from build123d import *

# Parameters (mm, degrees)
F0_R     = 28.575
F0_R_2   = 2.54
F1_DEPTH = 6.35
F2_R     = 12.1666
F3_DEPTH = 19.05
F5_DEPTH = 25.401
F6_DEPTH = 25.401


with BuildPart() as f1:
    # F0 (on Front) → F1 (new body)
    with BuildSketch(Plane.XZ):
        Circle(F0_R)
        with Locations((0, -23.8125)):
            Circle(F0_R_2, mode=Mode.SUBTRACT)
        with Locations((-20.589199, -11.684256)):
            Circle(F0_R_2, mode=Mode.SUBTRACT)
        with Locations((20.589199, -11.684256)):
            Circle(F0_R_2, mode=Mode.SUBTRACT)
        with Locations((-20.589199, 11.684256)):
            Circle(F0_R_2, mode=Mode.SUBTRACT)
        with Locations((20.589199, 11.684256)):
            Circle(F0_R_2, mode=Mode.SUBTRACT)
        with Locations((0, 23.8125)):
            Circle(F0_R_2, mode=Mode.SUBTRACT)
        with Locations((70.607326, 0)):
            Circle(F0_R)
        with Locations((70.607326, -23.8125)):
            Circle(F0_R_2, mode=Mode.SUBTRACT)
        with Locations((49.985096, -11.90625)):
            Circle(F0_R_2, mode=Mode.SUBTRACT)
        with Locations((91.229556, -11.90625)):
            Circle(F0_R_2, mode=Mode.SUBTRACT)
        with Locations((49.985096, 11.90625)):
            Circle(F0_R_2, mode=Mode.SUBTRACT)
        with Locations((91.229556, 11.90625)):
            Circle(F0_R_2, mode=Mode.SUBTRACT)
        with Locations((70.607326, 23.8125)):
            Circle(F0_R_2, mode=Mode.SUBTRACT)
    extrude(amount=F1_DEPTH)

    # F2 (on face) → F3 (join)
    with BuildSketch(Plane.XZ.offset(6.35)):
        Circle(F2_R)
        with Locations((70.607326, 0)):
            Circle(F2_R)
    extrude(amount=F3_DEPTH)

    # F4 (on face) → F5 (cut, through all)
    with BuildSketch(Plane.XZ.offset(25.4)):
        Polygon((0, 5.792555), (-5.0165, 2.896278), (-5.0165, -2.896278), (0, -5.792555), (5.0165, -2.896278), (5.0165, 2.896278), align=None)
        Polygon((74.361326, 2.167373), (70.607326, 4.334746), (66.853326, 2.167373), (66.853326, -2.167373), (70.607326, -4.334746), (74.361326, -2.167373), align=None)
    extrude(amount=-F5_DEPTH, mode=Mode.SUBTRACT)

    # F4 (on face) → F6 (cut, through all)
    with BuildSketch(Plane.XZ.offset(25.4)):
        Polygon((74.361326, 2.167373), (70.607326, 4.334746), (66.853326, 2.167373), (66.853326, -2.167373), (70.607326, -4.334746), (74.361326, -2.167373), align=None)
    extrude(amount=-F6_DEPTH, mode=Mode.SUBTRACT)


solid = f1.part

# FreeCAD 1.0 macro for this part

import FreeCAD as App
import Part
import Sketcher
Q = App.Units.Quantity

doc = App.newDocument("Part")
body = doc.addObject("PartDesign::Body", "Body")
body.AllowCompound = True

# Sketch on XZ plane
sketch1 = body.newObject("Sketcher::SketchObject", "Sketch")
sketch1.AttachmentSupport = (doc.getObject("XZ_Plane"), [""])
sketch1.MapMode = "FlatFace"
sketch1.addGeometry([
    Part.Circle(App.Vector(0, 0, 0), App.Vector(0, 0, 1), 28.6),  # 0
    Part.Circle(App.Vector(-20.6, -11.7, 0), App.Vector(0, 0, 1), 2.5),  # 1
    Part.Circle(App.Vector(0, -23.8, 0), App.Vector(0, 0, 1), 2.5),  # 2
    Part.Circle(App.Vector(20.6, -11.7, 0), App.Vector(0, 0, 1), 2.5),  # 3
    Part.Circle(App.Vector(-20.6, 11.7, 0), App.Vector(0, 0, 1), 2.5),  # 4
    Part.Circle(App.Vector(20.6, 11.7, 0), App.Vector(0, 0, 1), 2.5),  # 5
    Part.Circle(App.Vector(0, 23.8, 0), App.Vector(0, 0, 1), 2.5),  # 6
    Part.Circle(App.Vector(70.6, 0, 0), App.Vector(0, 0, 1), 28.6),  # 7
    Part.Circle(App.Vector(70.6, -23.8, 0), App.Vector(0, 0, 1), 2.5),  # 8
    Part.Circle(App.Vector(50, -11.9, 0), App.Vector(0, 0, 1), 2.5),  # 9
    Part.Circle(App.Vector(91.2, -11.9, 0), App.Vector(0, 0, 1), 2.5),  # 10
    Part.Circle(App.Vector(50, 11.9, 0), App.Vector(0, 0, 1), 2.5),  # 11
    Part.Circle(App.Vector(70.6, 23.8, 0), App.Vector(0, 0, 1), 2.5),  # 12
    Part.Circle(App.Vector(91.2, 11.9, 0), App.Vector(0, 0, 1), 2.5),  # 13
], False)
sketch1.addConstraint([
    Sketcher.Constraint("Coincident", 0, 3, -1, 1),
    Sketcher.Constraint("Equal", 1, 2),
    Sketcher.Constraint("Equal", 2, 3),
    Sketcher.Constraint("Equal", 3, 4),
    Sketcher.Constraint("Equal", 4, 5),
    Sketcher.Constraint("Equal", 5, 6),
    Sketcher.Constraint("Equal", 0, 7),
    Sketcher.Constraint("Equal", 6, 8),
    Sketcher.Constraint("Equal", 8, 9),
    Sketcher.Constraint("Equal", 9, 10),
    Sketcher.Constraint("Equal", 10, 11),
    Sketcher.Constraint("Equal", 11, 12),
    Sketcher.Constraint("Equal", 12, 13),
    Sketcher.Constraint("Symmetric", 3, 3, 4, 3, -1, 1),
    Sketcher.Constraint("Symmetric", 1, 3, 5, 3, -1, 1),
    Sketcher.Constraint("Symmetric", 2, 3, 6, 3, -1, 1),
    Sketcher.Constraint("Symmetric", 1, 3, 3, 3, -2),
    Sketcher.Constraint("Symmetric", 9, 3, 11, 3, -1),
    Sketcher.Constraint("Symmetric", 8, 3, 12, 3, -1),
    Sketcher.Constraint("Symmetric", 10, 3, 13, 3, -1),
    Sketcher.Constraint("PointOnObject", 2, 3, -2),
    Sketcher.Constraint("PointOnObject", 7, 3, -1),
    Sketcher.Constraint("Horizontal", 2, 3, 8, 3),
    Sketcher.Constraint("Horizontal", 9, 3, 10, 3),
    Sketcher.Constraint("Vertical", 7, 3, 8, 3),
    Sketcher.Constraint("Diameter", 1, Q("0.2 in")),
    Sketcher.Constraint("Diameter", 0, Q("2.25 in")),
    Sketcher.Constraint("DistanceY", 2, 3, -1, 1, Q("0.9375 in")),
    Sketcher.Constraint("DistanceY", 9, 3, -1, 1, Q("0.46875 in")),
    Sketcher.Constraint("DistanceX", 1, 3, -1, 1, 20.589199),
    Sketcher.Constraint("DistanceY", 1, 3, 4, 3, 23.368512),
    Sketcher.Constraint("DistanceX", 9, 3, 7, 3, 20.62223),
    Sketcher.Constraint("DistanceX", 7, 3, 10, 3, 20.62223),
    Sketcher.Constraint("DistanceX", -1, 1, 7, 3, 70.607326),
])
pad1 = body.newObject("PartDesign::Pad", "Pad")
pad1.Profile = sketch1
pad1.Length = Q("0.25 in")

# Sketch on XZ plane
sketch2 = body.newObject("Sketcher::SketchObject", "Sketch001")
sketch2.AttachmentSupport = (doc.getObject("XZ_Plane"), [""])
sketch2.MapMode = "FlatFace"
sketch2.AttachmentOffset = App.Placement(App.Vector(0, 0, 0.25 * 25.4), App.Rotation())
sketch2.addGeometry([
    Part.Circle(App.Vector(0, 0, 0), App.Vector(0, 0, 1), 12),
    Part.Circle(App.Vector(71, 0, 0), App.Vector(0, 0, 1), 12),
], False)
sketch2.addConstraint([
    Sketcher.Constraint("Coincident", 0, 3, -1, 1),
    Sketcher.Constraint("Equal", 0, 1),
    Sketcher.Constraint("PointOnObject", 1, 3, -1),
    Sketcher.Constraint("Diameter", 0, Q("0.958 in")),
    Sketcher.Constraint("DistanceX", -1, 1, 1, 3, 70.607326),
])
pad2 = body.newObject("PartDesign::Pad", "Pad001")
pad2.Profile = sketch2
pad2.Length = Q("0.75 in")

# Sketch on XZ plane
sketch3 = body.newObject("Sketcher::SketchObject", "Sketch002")
sketch3.AttachmentSupport = (doc.getObject("XZ_Plane"), [""])
sketch3.MapMode = "FlatFace"
sketch3.AttachmentOffset = App.Placement(App.Vector(0, 0, 1 * 25.4), App.Rotation())
sketch3.addGeometry([
    Part.LineSegment(App.Vector(0, 5.8, 0), App.Vector(-5, 2.9, 0)),  # 0
    Part.LineSegment(App.Vector(-5, 2.9, 0), App.Vector(-5, -2.9, 0)),  # 1
    Part.LineSegment(App.Vector(-5, -2.9, 0), App.Vector(0, -5.8, 0)),  # 2
    Part.LineSegment(App.Vector(0, -5.8, 0), App.Vector(5, -2.9, 0)),  # 3
    Part.LineSegment(App.Vector(5, -2.9, 0), App.Vector(5, 2.9, 0)),  # 4
    Part.LineSegment(App.Vector(5, 2.9, 0), App.Vector(0, 5.8, 0)),  # 5
    Part.LineSegment(App.Vector(74.4, 2.2, 0), App.Vector(70.6, 4.3, 0)),  # 6
    Part.LineSegment(App.Vector(70.6, 4.3, 0), App.Vector(66.9, 2.2, 0)),  # 7
    Part.LineSegment(App.Vector(66.9, 2.2, 0), App.Vector(66.9, -2.2, 0)),  # 8
    Part.LineSegment(App.Vector(66.9, -2.2, 0), App.Vector(70.6, -4.3, 0)),  # 9
    Part.LineSegment(App.Vector(70.6, -4.3, 0), App.Vector(74.4, -2.2, 0)),  # 10
    Part.LineSegment(App.Vector(74.4, -2.2, 0), App.Vector(74.4, 2.2, 0)),  # 11
], False)
sketch3.addConstraint([
    Sketcher.Constraint("Coincident", 0, 2, 1, 1),
    Sketcher.Constraint("Coincident", 1, 2, 2, 1),
    Sketcher.Constraint("Coincident", 2, 2, 3, 1),
    Sketcher.Constraint("Coincident", 3, 2, 4, 1),
    Sketcher.Constraint("Coincident", 4, 2, 5, 1),
    Sketcher.Constraint("Coincident", 5, 2, 0, 1),
    Sketcher.Constraint("Coincident", 6, 2, 7, 1),
    Sketcher.Constraint("Coincident", 7, 2, 8, 1),
    Sketcher.Constraint("Coincident", 8, 2, 9, 1),
    Sketcher.Constraint("Coincident", 9, 2, 10, 1),
    Sketcher.Constraint("Coincident", 10, 2, 11, 1),
    Sketcher.Constraint("Coincident", 11, 2, 6, 1),
    Sketcher.Constraint("Vertical", 1),
    Sketcher.Constraint("Vertical", 4),
    Sketcher.Constraint("Vertical", 8),
    Sketcher.Constraint("Vertical", 11),
    Sketcher.Constraint("Symmetric", 0, 2, 3, 2, -1, 1),
    Sketcher.Constraint("Symmetric", 2, 2, 5, 2, -1, 1),
    Sketcher.Constraint("Symmetric", 6, 2, 9, 2, -1),
    Sketcher.Constraint("PointOnObject", 2, 2, -2),
    Sketcher.Constraint("Parallel", 2, 5),
    Sketcher.Constraint("Parallel", 5, 6),
    Sketcher.Constraint("Parallel", 3, 7),
    Sketcher.Constraint("Parallel", 6, 9),
    Sketcher.Constraint("Parallel", 7, 10),
    Sketcher.Constraint("Horizontal", 1, 2, 3, 2),
    Sketcher.Constraint("Horizontal", 8, 2, 10, 2),
    Sketcher.Constraint("Angle", 0, Q("-150.000005 deg")),
    Sketcher.Constraint("DistanceX", 1, 2, 3, 2, Q("0.395 in")),
    Sketcher.Constraint("DistanceY", 2, 2, 6, 2, 10.127301),
    Sketcher.Constraint("DistanceX", 7, 2, 6, 2, 3.754),
    Sketcher.Constraint("DistanceY", 1, 2, 1, 1, 5.792556),
    Sketcher.Constraint("DistanceX", -1, 1, 6, 2, 70.607326),
])
pocket1 = body.newObject("PartDesign::Pocket", "Pocket")
pocket1.Profile = sketch3
pocket1.Type = "ThroughAll"

# Sketch on XZ plane
sketch4 = body.newObject("Sketcher::SketchObject", "Sketch003")
sketch4.AttachmentSupport = (doc.getObject("XZ_Plane"), [""])
sketch4.MapMode = "FlatFace"
sketch4.AttachmentOffset = App.Placement(App.Vector(0, 0, 1 * 25.4), App.Rotation())
sketch4.addGeometry([
    Part.LineSegment(App.Vector(74.4, 2.2, 0), App.Vector(70.6, 4.3, 0)),  # 0
    Part.LineSegment(App.Vector(70.6, 4.3, 0), App.Vector(66.9, 2.2, 0)),  # 1
    Part.LineSegment(App.Vector(66.9, 2.2, 0), App.Vector(66.9, -2.2, 0)),  # 2
    Part.LineSegment(App.Vector(66.9, -2.2, 0), App.Vector(70.6, -4.3, 0)),  # 3
    Part.LineSegment(App.Vector(70.6, -4.3, 0), App.Vector(74.4, -2.2, 0)),  # 4
    Part.LineSegment(App.Vector(74.4, -2.2, 0), App.Vector(74.4, 2.2, 0)),  # 5
], False)
sketch4.addConstraint([
    Sketcher.Constraint("Coincident", 0, 2, 1, 1),
    Sketcher.Constraint("Coincident", 1, 2, 2, 1),
    Sketcher.Constraint("Coincident", 2, 2, 3, 1),
    Sketcher.Constraint("Coincident", 3, 2, 4, 1),
    Sketcher.Constraint("Coincident", 4, 2, 5, 1),
    Sketcher.Constraint("Coincident", 5, 2, 0, 1),
    Sketcher.Constraint("Vertical", 2),
    Sketcher.Constraint("Vertical", 5),
    Sketcher.Constraint("Symmetric", 0, 2, 3, 2, -1),
    Sketcher.Constraint("Parallel", 0, 3),
    Sketcher.Constraint("Parallel", 1, 4),
    Sketcher.Constraint("Horizontal", 2, 2, 4, 2),
    Sketcher.Constraint("Horizontal", 1, 2, 5, 2),
    Sketcher.Constraint("Angle", 0, Q("149.999999 deg")),
    Sketcher.Constraint("DistanceX", 1, 2, 0, 2, 3.754),
    Sketcher.Constraint("DistanceY", 2, 2, 2, 1, 4.334746),
    Sketcher.Constraint("DistanceX", -1, 1, 0, 2, 70.607326),
])
pocket2 = body.newObject("PartDesign::Pocket", "Pocket001")
pocket2.Profile = sketch4
pocket2.Type = "ThroughAll"

doc.recompute()
